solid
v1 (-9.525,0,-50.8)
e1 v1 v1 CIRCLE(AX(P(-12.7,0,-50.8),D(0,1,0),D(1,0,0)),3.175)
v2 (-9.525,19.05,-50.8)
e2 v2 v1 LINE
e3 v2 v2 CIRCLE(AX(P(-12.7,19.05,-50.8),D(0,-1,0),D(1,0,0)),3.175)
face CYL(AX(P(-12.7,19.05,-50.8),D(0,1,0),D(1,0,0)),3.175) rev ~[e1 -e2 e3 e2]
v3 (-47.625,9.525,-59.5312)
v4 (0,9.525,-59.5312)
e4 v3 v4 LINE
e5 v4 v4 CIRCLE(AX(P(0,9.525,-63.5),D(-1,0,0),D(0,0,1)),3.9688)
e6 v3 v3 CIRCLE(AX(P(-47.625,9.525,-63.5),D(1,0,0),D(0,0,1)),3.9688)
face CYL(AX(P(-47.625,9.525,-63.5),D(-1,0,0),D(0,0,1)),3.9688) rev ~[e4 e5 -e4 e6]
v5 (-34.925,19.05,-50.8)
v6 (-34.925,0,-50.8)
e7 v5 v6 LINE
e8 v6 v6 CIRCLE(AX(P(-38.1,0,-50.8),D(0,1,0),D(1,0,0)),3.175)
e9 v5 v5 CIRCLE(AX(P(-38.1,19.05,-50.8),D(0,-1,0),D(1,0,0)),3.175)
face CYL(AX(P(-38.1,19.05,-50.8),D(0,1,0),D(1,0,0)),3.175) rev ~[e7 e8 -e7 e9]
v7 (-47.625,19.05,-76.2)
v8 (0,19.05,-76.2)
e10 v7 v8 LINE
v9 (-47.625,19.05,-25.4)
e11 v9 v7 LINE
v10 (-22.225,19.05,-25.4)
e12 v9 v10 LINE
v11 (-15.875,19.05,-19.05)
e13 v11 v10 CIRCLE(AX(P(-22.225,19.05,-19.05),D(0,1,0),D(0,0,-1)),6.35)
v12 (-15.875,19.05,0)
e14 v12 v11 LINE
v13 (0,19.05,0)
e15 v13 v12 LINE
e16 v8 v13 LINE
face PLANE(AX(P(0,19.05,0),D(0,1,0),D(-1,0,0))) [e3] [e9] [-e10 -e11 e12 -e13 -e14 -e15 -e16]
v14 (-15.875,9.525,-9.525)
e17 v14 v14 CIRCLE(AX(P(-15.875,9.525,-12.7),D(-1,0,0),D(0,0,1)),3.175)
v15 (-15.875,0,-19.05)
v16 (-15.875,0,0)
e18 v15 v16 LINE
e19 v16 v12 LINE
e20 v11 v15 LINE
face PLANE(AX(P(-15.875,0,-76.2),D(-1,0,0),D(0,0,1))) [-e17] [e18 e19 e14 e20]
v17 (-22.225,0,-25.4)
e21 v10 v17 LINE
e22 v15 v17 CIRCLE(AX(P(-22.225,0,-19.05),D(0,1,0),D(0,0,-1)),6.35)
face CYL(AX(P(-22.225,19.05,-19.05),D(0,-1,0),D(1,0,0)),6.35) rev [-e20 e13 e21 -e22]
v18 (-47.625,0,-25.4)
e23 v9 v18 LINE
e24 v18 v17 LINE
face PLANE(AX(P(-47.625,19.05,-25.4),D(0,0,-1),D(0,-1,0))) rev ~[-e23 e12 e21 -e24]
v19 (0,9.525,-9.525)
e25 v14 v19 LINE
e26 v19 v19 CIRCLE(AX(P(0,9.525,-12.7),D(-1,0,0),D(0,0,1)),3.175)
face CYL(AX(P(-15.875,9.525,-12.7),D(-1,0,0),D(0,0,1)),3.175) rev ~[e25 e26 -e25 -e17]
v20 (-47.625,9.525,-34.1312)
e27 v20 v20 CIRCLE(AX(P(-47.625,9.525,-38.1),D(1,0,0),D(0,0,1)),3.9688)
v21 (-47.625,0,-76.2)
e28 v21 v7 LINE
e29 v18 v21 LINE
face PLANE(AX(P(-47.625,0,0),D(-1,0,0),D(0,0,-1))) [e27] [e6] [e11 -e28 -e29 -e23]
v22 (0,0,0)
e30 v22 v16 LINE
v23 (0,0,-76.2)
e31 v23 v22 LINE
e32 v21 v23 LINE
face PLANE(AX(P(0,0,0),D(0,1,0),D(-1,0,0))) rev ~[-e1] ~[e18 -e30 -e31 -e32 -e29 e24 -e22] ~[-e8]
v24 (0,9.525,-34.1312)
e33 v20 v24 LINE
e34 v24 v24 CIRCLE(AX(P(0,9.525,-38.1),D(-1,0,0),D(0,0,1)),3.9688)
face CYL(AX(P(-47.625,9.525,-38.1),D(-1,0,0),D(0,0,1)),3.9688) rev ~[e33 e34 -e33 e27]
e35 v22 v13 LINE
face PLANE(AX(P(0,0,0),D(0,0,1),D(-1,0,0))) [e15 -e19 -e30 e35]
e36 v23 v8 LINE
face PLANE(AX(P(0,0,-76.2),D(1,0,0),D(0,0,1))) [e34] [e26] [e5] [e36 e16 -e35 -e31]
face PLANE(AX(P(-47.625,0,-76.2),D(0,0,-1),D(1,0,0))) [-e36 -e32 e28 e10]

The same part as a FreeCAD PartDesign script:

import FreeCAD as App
import Part
import Sketcher
from FreeCAD import Vector
Q = App.Units.Quantity


def edges_at(feature, points):
    """Names of the edges that pass closest to the given points."""
    edges = feature.Shape.Edges
    near = lambda p: min(range(len(edges)), key=lambda i: edges[i].distToShape(Part.Vertex(*p))[0])
    return sorted({f"Edge{near(p) + 1}" for p in points})


def add_polygon(sketch, points):
    """Adds a closed chain of lines whose ends are joined by coincident constraints."""
    first, n = sketch.GeometryCount, len(points)
    for a, b in zip(points, points[1:] + points[:1]):
        sketch.addGeometry(Part.LineSegment(App.Vector(*a, 0), App.Vector(*b, 0)), False)
    for i in range(n):
        sketch.addConstraint(Sketcher.Constraint("Coincident", first + i, 2, first + (i + 1) % n, 1))

doc = App.newDocument("Part")
body = doc.addObject("PartDesign::Body", "Body")

# Sketch on XZ plane
sketch1 = doc.addObject("Sketcher::SketchObject", "Sketch")
body.addObject(sketch1)
sketch1.AttachmentSupport = (doc.XZ_Plane, [""])
sketch1.MapMode = "FlatFace"
add_polygon(sketch1, [(-48, 0), (0, 0), (0, -76), (-48, -76)])  # lines 0-3
sketch1.addConstraint([
    Sketcher.Constraint("Horizontal", 0),
    Sketcher.Constraint("Vertical", 1),
    Sketcher.Constraint("Horizontal", 2),
    Sketcher.Constraint("Vertical", 3),
    Sketcher.Constraint("Coincident", 0, 2, -1, 1),
    Sketcher.Constraint("DistanceY", 1, 2, 1, 1, Q("3 in")),
    Sketcher.Constraint("DistanceX", 0, 1, 0, 2, Q("1.875 in")),
])
pad1 = doc.addObject("PartDesign::Pad", "Pad")
body.addObject(pad1)
pad1.Profile = sketch1
pad1.Length = Q("0.75 in")
pad1.Reversed = True

# Sketch on YZ plane
sketch2 = doc.addObject("Sketcher::SketchObject", "Sketch001")
body.addObject(sketch2)
sketch2.AttachmentSupport = (doc.YZ_Plane, [""])
sketch2.MapMode = "FlatFace"
sketch2.AttachmentOffset = App.Placement(Vector(0, 0, -1.875 * 25.4), App.Rotation())
add_polygon(sketch2, [(0, 0), (19, 0), (19, -25), (0, -25)])  # lines 0-3
sketch2.addConstraint([
    Sketcher.Constraint("Horizontal", 0),
    Sketcher.Constraint("Vertical", 1),
    Sketcher.Constraint("Horizontal", 2),
    Sketcher.Constraint("Vertical", 3),
    Sketcher.Constraint("Coincident", 3, 2, -1, 1),
    Sketcher.Constraint("DistanceY", 1, 2, 1, 1, Q("1 in")),
    Sketcher.Constraint("DistanceX", 0, 1, 0, 2, Q("0.75 in")),
])
pocket1 = doc.addObject("PartDesign::Pocket", "Pocket")
body.addObject(pocket1)
pocket1.Profile = sketch2
pocket1.Length = Q("1.25 in")
pocket1.Reversed = True
doc.recompute()

fillet = doc.addObject("PartDesign::Fillet", "Fillet")
body.addObject(fillet)
fillet.Base = (pocket1, edges_at(pocket1, [(-15.875, 9.525, -25.4)]))
fillet.Radius = Q("0.25 in")

# Sketch on YZ plane
sketch3 = doc.addObject("Sketcher::SketchObject", "Sketch002")
body.addObject(sketch3)
sketch3.AttachmentSupport = (doc.YZ_Plane, [""])
sketch3.MapMode = "FlatFace"
sketch3.AttachmentOffset = App.Placement(Vector(0, 0, -1.875 * 25.4), App.Rotation())
sketch3.addGeometry([
    Part.Circle(Vector(9.5, -63.5, 0), Vector(0, 0, 1), 4),
    Part.Circle(Vector(9.5, -38.1, 0), Vector(0, 0, 1), 4),
], False)
sketch3.addConstraint([
    Sketcher.Constraint("Equal", 0, 1),
    Sketcher.Constraint("Vertical", 0, 3, 1, 3),
    Sketcher.Constraint("Diameter", 0, Q("0.3125 in")),
    Sketcher.Constraint("DistanceY", 0, 3, 1, 3, Q("1 in")),
    Sketcher.Constraint("DistanceY", 0, 3, -1, 1, Q("2.5 in")),
    Sketcher.Constraint("DistanceX", -1, 1, 0, 3, Q("0.375 in")),
])
pocket2 = doc.addObject("PartDesign::Pocket", "Pocket001")
body.addObject(pocket2)
pocket2.Profile = sketch3
pocket2.Type = "ThroughAll"
pocket2.Reversed = True

# Sketch on YZ plane
sketch4 = doc.addObject("Sketcher::SketchObject", "Sketch003")
body.addObject(sketch4)
sketch4.AttachmentSupport = (doc.YZ_Plane, [""])
sketch4.MapMode = "FlatFace"
sketch4.AttachmentOffset = App.Placement(Vector(0, 0, -0.625 * 25.4), App.Rotation())
sketch4.addGeometry(Part.Circle(Vector(9.5, -12.7, 0), Vector(0, 0, 1), 3.2), False)
sketch4.addConstraint([
    Sketcher.Constraint("Diameter", 0, Q("0.25 in")),
    Sketcher.Constraint("DistanceY", 0, 3, -1, 1, Q("0.5 in")),
    Sketcher.Constraint("DistanceX", -1, 1, 0, 3, Q("0.375 in")),
])
pocket3 = doc.addObject("PartDesign::Pocket", "Pocket002")
body.addObject(pocket3)
pocket3.Profile = sketch4
pocket3.Length = Q("1.75 in")
pocket3.Midplane = True

# Sketch on XZ plane
sketch5 = doc.addObject("Sketcher::SketchObject", "Sketch004")
body.addObject(sketch5)
sketch5.AttachmentSupport = (doc.XZ_Plane, [""])
sketch5.MapMode = "FlatFace"
sketch5.AttachmentOffset = App.Placement(Vector(0, 0, -0.75 * 25.4), App.Rotation())
sketch5.addGeometry([
    Part.Circle(Vector(-38.1, -50.8, 0), Vector(0, 0, 1), 3.2),
    Part.Circle(Vector(-12.7, -50.8, 0), Vector(0, 0, 1), 3.2),
], False)
sketch5.addConstraint([
    Sketcher.Constraint("Equal", 0, 1),
    Sketcher.Constraint("Horizontal", 0, 3, 1, 3),
    Sketcher.Constraint("Diameter", 0, Q("0.25 in")),
    Sketcher.Constraint("DistanceX", 0, 3, 1, 3, Q("1 in")),
    Sketcher.Constraint("DistanceY", 0, 3, -1, 1, Q("2 in")),
    Sketcher.Constraint("DistanceX", 0, 3, -1, 1, Q("1.5 in")),
])
pocket4 = doc.addObject("PartDesign::Pocket", "Pocket003")
body.addObject(pocket4)
pocket4.Profile = sketch5
pocket4.Length = Q("1 in")
pocket4.Reversed = True

doc.recompute()
